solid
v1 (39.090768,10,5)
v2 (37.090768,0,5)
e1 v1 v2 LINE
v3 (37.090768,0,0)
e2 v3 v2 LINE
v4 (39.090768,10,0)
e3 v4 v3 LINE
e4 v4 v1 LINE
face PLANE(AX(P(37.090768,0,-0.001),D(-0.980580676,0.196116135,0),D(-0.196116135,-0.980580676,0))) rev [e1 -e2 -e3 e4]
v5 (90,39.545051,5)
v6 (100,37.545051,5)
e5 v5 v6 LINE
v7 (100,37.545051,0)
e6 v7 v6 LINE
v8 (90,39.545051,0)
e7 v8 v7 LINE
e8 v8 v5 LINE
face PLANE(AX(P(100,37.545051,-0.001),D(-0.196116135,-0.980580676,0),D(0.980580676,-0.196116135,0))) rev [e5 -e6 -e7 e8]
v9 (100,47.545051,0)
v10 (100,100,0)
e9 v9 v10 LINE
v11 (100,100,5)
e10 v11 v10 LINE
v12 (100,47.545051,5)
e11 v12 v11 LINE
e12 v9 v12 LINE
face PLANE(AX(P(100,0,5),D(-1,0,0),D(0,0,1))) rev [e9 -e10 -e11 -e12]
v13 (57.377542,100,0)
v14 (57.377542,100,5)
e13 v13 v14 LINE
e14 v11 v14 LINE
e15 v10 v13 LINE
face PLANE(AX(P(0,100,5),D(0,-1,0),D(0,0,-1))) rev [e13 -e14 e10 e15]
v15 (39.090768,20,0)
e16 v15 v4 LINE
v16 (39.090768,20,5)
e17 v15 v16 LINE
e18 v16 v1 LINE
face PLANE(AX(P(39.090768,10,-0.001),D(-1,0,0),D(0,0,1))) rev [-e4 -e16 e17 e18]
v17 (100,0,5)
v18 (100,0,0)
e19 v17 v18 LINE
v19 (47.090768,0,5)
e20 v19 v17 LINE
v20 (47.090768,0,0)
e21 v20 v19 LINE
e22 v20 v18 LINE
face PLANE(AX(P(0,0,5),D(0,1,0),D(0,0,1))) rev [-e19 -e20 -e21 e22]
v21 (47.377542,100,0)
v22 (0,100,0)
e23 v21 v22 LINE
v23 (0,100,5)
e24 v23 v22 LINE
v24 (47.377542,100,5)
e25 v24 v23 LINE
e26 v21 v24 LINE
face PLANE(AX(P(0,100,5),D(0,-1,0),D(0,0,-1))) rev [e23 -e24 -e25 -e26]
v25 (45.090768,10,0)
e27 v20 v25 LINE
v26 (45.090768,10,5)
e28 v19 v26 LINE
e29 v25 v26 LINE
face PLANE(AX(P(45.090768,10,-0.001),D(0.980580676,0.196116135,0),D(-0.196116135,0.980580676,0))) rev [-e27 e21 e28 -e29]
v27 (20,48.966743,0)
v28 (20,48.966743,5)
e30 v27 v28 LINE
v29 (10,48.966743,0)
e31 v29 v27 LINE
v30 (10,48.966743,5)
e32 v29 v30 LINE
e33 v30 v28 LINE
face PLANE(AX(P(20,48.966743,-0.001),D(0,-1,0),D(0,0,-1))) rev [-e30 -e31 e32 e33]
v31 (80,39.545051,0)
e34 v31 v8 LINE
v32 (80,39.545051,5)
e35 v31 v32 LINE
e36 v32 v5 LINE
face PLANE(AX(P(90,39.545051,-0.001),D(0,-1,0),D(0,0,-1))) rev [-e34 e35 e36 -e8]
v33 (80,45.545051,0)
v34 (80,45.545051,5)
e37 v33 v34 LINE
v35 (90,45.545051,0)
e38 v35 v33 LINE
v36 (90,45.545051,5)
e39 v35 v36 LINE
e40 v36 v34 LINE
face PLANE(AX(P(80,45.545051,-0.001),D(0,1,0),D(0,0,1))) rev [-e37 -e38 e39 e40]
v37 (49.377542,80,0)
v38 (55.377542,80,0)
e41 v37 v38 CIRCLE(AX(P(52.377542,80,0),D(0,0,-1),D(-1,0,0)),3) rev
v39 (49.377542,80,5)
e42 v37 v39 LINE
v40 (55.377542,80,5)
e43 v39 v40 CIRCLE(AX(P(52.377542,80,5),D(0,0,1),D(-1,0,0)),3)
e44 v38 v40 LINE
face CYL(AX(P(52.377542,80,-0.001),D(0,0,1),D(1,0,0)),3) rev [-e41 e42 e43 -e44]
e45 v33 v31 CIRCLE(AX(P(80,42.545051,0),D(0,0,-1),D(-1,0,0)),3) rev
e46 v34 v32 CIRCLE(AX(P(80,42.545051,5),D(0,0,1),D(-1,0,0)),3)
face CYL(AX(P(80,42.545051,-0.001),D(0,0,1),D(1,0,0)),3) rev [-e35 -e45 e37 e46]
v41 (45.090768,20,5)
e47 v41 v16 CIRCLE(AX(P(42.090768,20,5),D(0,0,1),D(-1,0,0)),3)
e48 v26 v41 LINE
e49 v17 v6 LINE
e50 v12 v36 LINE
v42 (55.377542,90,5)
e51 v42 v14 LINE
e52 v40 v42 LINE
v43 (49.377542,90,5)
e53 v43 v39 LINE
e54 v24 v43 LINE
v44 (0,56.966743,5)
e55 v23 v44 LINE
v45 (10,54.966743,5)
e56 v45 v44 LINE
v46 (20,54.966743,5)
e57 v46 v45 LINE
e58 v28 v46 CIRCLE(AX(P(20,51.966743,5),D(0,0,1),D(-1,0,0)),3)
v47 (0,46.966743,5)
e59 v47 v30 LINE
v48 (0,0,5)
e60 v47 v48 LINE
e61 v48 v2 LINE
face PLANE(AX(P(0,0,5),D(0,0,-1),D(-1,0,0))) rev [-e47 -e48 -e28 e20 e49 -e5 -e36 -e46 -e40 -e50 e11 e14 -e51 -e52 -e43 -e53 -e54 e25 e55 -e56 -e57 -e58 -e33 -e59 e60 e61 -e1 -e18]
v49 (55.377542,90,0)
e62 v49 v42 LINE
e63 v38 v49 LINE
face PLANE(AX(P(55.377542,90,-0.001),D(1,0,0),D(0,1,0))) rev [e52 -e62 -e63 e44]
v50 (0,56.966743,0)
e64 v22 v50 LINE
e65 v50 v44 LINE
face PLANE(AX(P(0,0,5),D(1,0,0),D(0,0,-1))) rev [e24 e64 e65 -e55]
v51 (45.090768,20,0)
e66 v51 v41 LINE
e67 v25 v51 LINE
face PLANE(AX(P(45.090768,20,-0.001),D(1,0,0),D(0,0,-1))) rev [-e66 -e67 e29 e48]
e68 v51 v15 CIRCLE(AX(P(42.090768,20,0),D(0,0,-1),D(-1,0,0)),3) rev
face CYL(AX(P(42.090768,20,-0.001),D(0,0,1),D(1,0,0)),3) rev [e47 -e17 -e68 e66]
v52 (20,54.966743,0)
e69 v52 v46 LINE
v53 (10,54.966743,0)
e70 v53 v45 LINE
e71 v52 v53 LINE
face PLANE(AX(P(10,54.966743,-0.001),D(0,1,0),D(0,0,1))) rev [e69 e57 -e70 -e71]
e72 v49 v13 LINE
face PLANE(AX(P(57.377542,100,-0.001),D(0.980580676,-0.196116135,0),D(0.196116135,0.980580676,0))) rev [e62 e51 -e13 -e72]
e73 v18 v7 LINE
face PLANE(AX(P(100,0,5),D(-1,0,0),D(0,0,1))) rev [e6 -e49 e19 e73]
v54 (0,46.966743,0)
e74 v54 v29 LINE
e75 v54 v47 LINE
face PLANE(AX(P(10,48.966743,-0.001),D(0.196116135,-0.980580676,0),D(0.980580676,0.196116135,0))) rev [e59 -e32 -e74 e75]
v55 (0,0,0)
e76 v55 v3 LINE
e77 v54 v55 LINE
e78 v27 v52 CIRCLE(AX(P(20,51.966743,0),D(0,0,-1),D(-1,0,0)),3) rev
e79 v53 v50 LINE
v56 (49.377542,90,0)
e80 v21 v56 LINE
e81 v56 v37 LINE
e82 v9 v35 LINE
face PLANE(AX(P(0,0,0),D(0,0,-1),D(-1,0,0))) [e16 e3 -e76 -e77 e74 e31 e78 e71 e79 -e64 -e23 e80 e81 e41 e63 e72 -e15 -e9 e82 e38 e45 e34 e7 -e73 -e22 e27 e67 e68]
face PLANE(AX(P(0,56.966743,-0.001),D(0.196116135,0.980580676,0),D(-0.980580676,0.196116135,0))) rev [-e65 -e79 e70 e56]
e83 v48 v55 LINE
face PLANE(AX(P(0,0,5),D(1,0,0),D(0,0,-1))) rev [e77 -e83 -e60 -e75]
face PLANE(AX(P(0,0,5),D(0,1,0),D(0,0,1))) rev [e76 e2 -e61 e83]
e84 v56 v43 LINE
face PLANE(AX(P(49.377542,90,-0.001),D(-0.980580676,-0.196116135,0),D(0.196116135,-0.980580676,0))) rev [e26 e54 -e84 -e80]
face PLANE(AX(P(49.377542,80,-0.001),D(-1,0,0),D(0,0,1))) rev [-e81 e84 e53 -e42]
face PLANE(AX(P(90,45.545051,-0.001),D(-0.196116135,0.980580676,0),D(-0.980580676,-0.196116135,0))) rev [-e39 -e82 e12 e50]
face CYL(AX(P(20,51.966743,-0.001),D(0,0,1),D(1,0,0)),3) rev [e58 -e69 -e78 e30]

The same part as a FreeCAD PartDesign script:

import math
import FreeCAD as App
import Part
import Sketcher
from FreeCAD import Vector
Q = App.Units.Quantity


def add_polygon(sketch, points):
    """Adds a closed chain of lines whose ends are joined by coincident constraints."""
    first, n = sketch.GeometryCount, len(points)
    for a, b in zip(points, points[1:] + points[:1]):
        sketch.addGeometry(Part.LineSegment(App.Vector(*a, 0), App.Vector(*b, 0)), False)
    for i in range(n):
        sketch.addConstraint(Sketcher.Constraint("Coincident", first + i, 2, first + (i + 1) % n, 1))

doc = App.newDocument("Part")
body = doc.addObject("PartDesign::Body", "Body")

# Sketch on XY plane
sketch1 = doc.addObject("Sketcher::SketchObject", "Sketch")
body.addObject(sketch1)
sketch1.AttachmentSupport = (doc.XY_Plane, [""])
sketch1.MapMode = "FlatFace"
add_polygon(sketch1, [(0, 100), (0, 0), (100, 0), (100, 100)])  # lines 0-3
sketch1.addConstraint(Sketcher.Constraint("Vertical", 0))
sketch1.addConstraint(Sketcher.Constraint("Horizontal", 1))
sketch1.addConstraint(Sketcher.Constraint("Vertical", 2))
sketch1.addConstraint(Sketcher.Constraint("Horizontal", 3))
sketch1.addConstraint(Sketcher.Constraint("Coincident", 0, 2, -1, 1))
sketch1.addConstraint(Sketcher.Constraint("Equal", 3, 0))
sketch1.addConstraint(Sketcher.Constraint("DistanceX", 1, 1, 1, 2, Q("100 mm")))
pad1 = doc.addObject("PartDesign::Pad", "Pad")
body.addObject(pad1)
pad1.Profile = sketch1
pad1.Length = 5

# Sketch on XY plane
sketch2 = doc.addObject("Sketcher::SketchObject", "Sketch001")
body.addObject(sketch2)
sketch2.AttachmentSupport = (doc.XY_Plane, [""])
sketch2.MapMode = "FlatFace"
sketch2.AttachmentOffset = App.Placement(Vector(0, 0, 5), App.Rotation())
sketch2.addGeometry(Part.LineSegment(Vector(39.1, 10, 0), Vector(37.1, 0, 0)), False)
sketch2.addGeometry(Part.LineSegment(Vector(37.1, 0, 0), Vector(47.1, 0, 0)), False)
sketch2.addGeometry(Part.LineSegment(Vector(47.1, 0, 0), Vector(45.1, 10, 0)), False)
sketch2.addGeometry(Part.LineSegment(Vector(45.1, 10, 0), Vector(45.1, 20, 0)), False)
sketch2.addGeometry(Part.ArcOfCircle(Part.Circle(Vector(42.1, 20, 0), Vector(0, 0, 1), 3), math.radians(0), math.radians(180)), False)
sketch2.addGeometry(Part.LineSegment(Vector(39.1, 20, 0), Vector(39.1, 10, 0)), False)
sketch2.addConstraint(Sketcher.Constraint("Coincident", 0, 2, 1, 1))
sketch2.addConstraint(Sketcher.Constraint("Coincident", 1, 2, 2, 1))
sketch2.addConstraint(Sketcher.Constraint("Coincident", 2, 2, 3, 1))
sketch2.addConstraint(Sketcher.Constraint("Tangent", 3, 2, 4, 1))
sketch2.addConstraint(Sketcher.Constraint("Tangent", 4, 2, 5, 1))
sketch2.addConstraint(Sketcher.Constraint("Coincident", 5, 2, 0, 1))
sketch2.addConstraint(Sketcher.Constraint("Horizontal", 1))
sketch2.addConstraint(Sketcher.Constraint("Vertical", 3))
sketch2.addConstraint(Sketcher.Constraint("Vertical", 5))
sketch2.addConstraint(Sketcher.Constraint("PointOnObject", 0, 2, -1))
sketch2.addConstraint(Sketcher.Constraint("Horizontal", 2, 2, 5, 2))
sketch2.addConstraint(Sketcher.Constraint("Equal", 1, 3))
sketch2.addConstraint(Sketcher.Constraint("Equal", 0, 2))
sketch2.addConstraint(Sketcher.Constraint("Radius", 4, Q("3 mm")))
sketch2.addConstraint(Sketcher.Constraint("DistanceX", 1, 1, 1, 2, Q("10 mm")))
sketch2.addConstraint(Sketcher.Constraint("DistanceY", -1, 1, 4, 3, Q("20 mm")))
sketch2.addConstraint(Sketcher.Constraint("DistanceX", -1, 1, 4, 3, Q("42.090768 mm")))
pocket1 = doc.addObject("PartDesign::Pocket", "Pocket")
body.addObject(pocket1)
pocket1.Profile = sketch2
pocket1.Type = "UpToFirst"

# Sketch on XY plane
sketch3 = doc.addObject("Sketcher::SketchObject", "Sketch002")
body.addObject(sketch3)
sketch3.AttachmentSupport = (doc.XY_Plane, [""])
sketch3.MapMode = "FlatFace"
sketch3.AttachmentOffset = App.Placement(Vector(0, 0, 5), App.Rotation())
sketch3.addGeometry(Part.LineSegment(Vector(10, 55, 0), Vector(0, 57, 0)), False)
sketch3.addGeometry(Part.LineSegment(Vector(0, 57, 0), Vector(0, 47, 0)), False)
sketch3.addGeometry(Part.LineSegment(Vector(0, 47, 0), Vector(10, 49, 0)), False)
sketch3.addGeometry(Part.LineSegment(Vector(10, 49, 0), Vector(20, 49, 0)), False)
sketch3.addGeometry(Part.ArcOfCircle(Part.Circle(Vector(20, 52, 0), Vector(0, 0, 1), 3), math.radians(-90), math.radians(90)), False)
sketch3.addGeometry(Part.LineSegment(Vector(20, 55, 0), Vector(10, 55, 0)), False)
sketch3.addConstraint(Sketcher.Constraint("Coincident", 0, 2, 1, 1))
sketch3.addConstraint(Sketcher.Constraint("Coincident", 1, 2, 2, 1))
sketch3.addConstraint(Sketcher.Constraint("Coincident", 2, 2, 3, 1))
sketch3.addConstraint(Sketcher.Constraint("Tangent", 3, 2, 4, 1))
sketch3.addConstraint(Sketcher.Constraint("Tangent", 4, 2, 5, 1))
sketch3.addConstraint(Sketcher.Constraint("Coincident", 5, 2, 0, 1))
sketch3.addConstraint(Sketcher.Constraint("Vertical", 1))
sketch3.addConstraint(Sketcher.Constraint("Horizontal", 3))
sketch3.addConstraint(Sketcher.Constraint("Horizontal", 5))
sketch3.addConstraint(Sketcher.Constraint("PointOnObject", 0, 2, -2))
sketch3.addConstraint(Sketcher.Constraint("Vertical", 2, 2, 5, 2))
sketch3.addConstraint(Sketcher.Constraint("Equal", 5, 1))
sketch3.addConstraint(Sketcher.Constraint("Equal", 0, 2))
sketch3.addConstraint(Sketcher.Constraint("Radius", 4, Q("3 mm")))
sketch3.addConstraint(Sketcher.Constraint("DistanceX", 3, 1, 3, 2, Q("10 mm")))
sketch3.addConstraint(Sketcher.Constraint("DistanceX", -1, 1, 4, 3, Q("20 mm")))
sketch3.addConstraint(Sketcher.Constraint("DistanceY", -1, 1, 4, 3, Q("51.966743 mm")))
pocket2 = doc.addObject("PartDesign::Pocket", "Pocket001")
body.addObject(pocket2)
pocket2.Profile = sketch3
pocket2.Type = "UpToFirst"

# Sketch on XY plane
sketch4 = doc.addObject("Sketcher::SketchObject", "Sketch003")
body.addObject(sketch4)
sketch4.AttachmentSupport = (doc.XY_Plane, [""])
sketch4.MapMode = "FlatFace"
sketch4.AttachmentOffset = App.Placement(Vector(0, 0, 5), App.Rotation())
sketch4.addGeometry(Part.LineSegment(Vector(55.4, 90, 0), Vector(57.4, 100, 0)), False)
sketch4.addGeometry(Part.LineSegment(Vector(57.4, 100, 0), Vector(47.4, 100, 0)), False)
sketch4.addGeometry(Part.LineSegment(Vector(47.4, 100, 0), Vector(49.4, 90, 0)), False)
sketch4.addGeometry(Part.LineSegment(Vector(49.4, 90, 0), Vector(49.4, 80, 0)), False)
sketch4.addGeometry(Part.ArcOfCircle(Part.Circle(Vector(52.4, 80, 0), Vector(0, 0, 1), 3), math.radians(180), math.radians(360)), False)
sketch4.addGeometry(Part.LineSegment(Vector(55.4, 80, 0), Vector(55.4, 90, 0)), False)
sketch4.addConstraint(Sketcher.Constraint("Coincident", 0, 2, 1, 1))
sketch4.addConstraint(Sketcher.Constraint("Coincident", 1, 2, 2, 1))
sketch4.addConstraint(Sketcher.Constraint("Coincident", 2, 2, 3, 1))
sketch4.addConstraint(Sketcher.Constraint("Tangent", 3, 2, 4, 1))
sketch4.addConstraint(Sketcher.Constraint("Tangent", 4, 2, 5, 1))
sketch4.addConstraint(Sketcher.Constraint("Coincident", 5, 2, 0, 1))
sketch4.addConstraint(Sketcher.Constraint("Horizontal", 1))
sketch4.addConstraint(Sketcher.Constraint("Vertical", 3))
sketch4.addConstraint(Sketcher.Constraint("Vertical", 5))
sketch4.addConstraint(Sketcher.Constraint("Horizontal", 2, 2, 5, 2))
sketch4.addConstraint(Sketcher.Constraint("Equal", 1, 3))
sketch4.addConstraint(Sketcher.Constraint("Equal", 0, 2))
sketch4.addConstraint(Sketcher.Constraint("Radius", 4, Q("3 mm")))
sketch4.addConstraint(Sketcher.Constraint("DistanceX", 1, 2, 1, 1, Q("10 mm")))
sketch4.addConstraint(Sketcher.Constraint("DistanceY", -1, 1, 4, 3, Q("80 mm")))
sketch4.addConstraint(Sketcher.Constraint("DistanceY", -1, 1, 0, 2, Q("100 mm")))
sketch4.addConstraint(Sketcher.Constraint("DistanceX", -1, 1, 4, 3, Q("52.377542 mm")))
pocket3 = doc.addObject("PartDesign::Pocket", "Pocket002")
body.addObject(pocket3)
pocket3.Profile = sketch4
pocket3.Type = "UpToFirst"

# Sketch on XY plane
sketch5 = doc.addObject("Sketcher::SketchObject", "Sketch004")
body.addObject(sketch5)
sketch5.AttachmentSupport = (doc.XY_Plane, [""])
sketch5.MapMode = "FlatFace"
sketch5.AttachmentOffset = App.Placement(Vector(0, 0, 5), App.Rotation())
sketch5.addGeometry(Part.LineSegment(Vector(90, 39.5, 0), Vector(100, 37.5, 0)), False)
sketch5.addGeometry(Part.LineSegment(Vector(100, 37.5, 0), Vector(100, 47.5, 0)), False)
sketch5.addGeometry(Part.LineSegment(Vector(100, 47.5, 0), Vector(90, 45.5, 0)), False)
sketch5.addGeometry(Part.LineSegment(Vector(90, 45.5, 0), Vector(80, 45.5, 0)), False)
sketch5.addGeometry(Part.ArcOfCircle(Part.Circle(Vector(80, 42.5, 0), Vector(0, 0, 1), 3), math.radians(90), math.radians(270)), False)
sketch5.addGeometry(Part.LineSegment(Vector(80, 39.5, 0), Vector(90, 39.5, 0)), False)
sketch5.addConstraint(Sketcher.Constraint("Coincident", 0, 2, 1, 1))
sketch5.addConstraint(Sketcher.Constraint("Coincident", 1, 2, 2, 1))
sketch5.addConstraint(Sketcher.Constraint("Coincident", 2, 2, 3, 1))
sketch5.addConstraint(Sketcher.Constraint("Tangent", 3, 2, 4, 1))
sketch5.addConstraint(Sketcher.Constraint("Tangent", 4, 2, 5, 1))
sketch5.addConstraint(Sketcher.Constraint("Coincident", 5, 2, 0, 1))
sketch5.addConstraint(Sketcher.Constraint("Vertical", 1))
sketch5.addConstraint(Sketcher.Constraint("Horizontal", 3))
sketch5.addConstraint(Sketcher.Constraint("Horizontal", 5))
sketch5.addConstraint(Sketcher.Constraint("Vertical", 2, 2, 5, 2))
sketch5.addConstraint(Sketcher.Constraint("Equal", 5, 1))
sketch5.addConstraint(Sketcher.Constraint("Equal", 0, 2))
sketch5.addConstraint(Sketcher.Constraint("Radius", 4, Q("3 mm")))
sketch5.addConstraint(Sketcher.Constraint("DistanceX", 3, 2, 3, 1, Q("10 mm")))
sketch5.addConstraint(Sketcher.Constraint("DistanceX", -1, 1, 4, 3, Q("80 mm")))
sketch5.addConstraint(Sketcher.Constraint("DistanceX", -1, 1, 0, 2, Q("100 mm")))
sketch5.addConstraint(Sketcher.Constraint("DistanceY", -1, 1, 4, 3, Q("42.545051 mm")))
pocket4 = doc.addObject("PartDesign::Pocket", "Pocket003")
body.addObject(pocket4)
pocket4.Profile = sketch5
pocket4.Type = "UpToFirst"

doc.recompute()
